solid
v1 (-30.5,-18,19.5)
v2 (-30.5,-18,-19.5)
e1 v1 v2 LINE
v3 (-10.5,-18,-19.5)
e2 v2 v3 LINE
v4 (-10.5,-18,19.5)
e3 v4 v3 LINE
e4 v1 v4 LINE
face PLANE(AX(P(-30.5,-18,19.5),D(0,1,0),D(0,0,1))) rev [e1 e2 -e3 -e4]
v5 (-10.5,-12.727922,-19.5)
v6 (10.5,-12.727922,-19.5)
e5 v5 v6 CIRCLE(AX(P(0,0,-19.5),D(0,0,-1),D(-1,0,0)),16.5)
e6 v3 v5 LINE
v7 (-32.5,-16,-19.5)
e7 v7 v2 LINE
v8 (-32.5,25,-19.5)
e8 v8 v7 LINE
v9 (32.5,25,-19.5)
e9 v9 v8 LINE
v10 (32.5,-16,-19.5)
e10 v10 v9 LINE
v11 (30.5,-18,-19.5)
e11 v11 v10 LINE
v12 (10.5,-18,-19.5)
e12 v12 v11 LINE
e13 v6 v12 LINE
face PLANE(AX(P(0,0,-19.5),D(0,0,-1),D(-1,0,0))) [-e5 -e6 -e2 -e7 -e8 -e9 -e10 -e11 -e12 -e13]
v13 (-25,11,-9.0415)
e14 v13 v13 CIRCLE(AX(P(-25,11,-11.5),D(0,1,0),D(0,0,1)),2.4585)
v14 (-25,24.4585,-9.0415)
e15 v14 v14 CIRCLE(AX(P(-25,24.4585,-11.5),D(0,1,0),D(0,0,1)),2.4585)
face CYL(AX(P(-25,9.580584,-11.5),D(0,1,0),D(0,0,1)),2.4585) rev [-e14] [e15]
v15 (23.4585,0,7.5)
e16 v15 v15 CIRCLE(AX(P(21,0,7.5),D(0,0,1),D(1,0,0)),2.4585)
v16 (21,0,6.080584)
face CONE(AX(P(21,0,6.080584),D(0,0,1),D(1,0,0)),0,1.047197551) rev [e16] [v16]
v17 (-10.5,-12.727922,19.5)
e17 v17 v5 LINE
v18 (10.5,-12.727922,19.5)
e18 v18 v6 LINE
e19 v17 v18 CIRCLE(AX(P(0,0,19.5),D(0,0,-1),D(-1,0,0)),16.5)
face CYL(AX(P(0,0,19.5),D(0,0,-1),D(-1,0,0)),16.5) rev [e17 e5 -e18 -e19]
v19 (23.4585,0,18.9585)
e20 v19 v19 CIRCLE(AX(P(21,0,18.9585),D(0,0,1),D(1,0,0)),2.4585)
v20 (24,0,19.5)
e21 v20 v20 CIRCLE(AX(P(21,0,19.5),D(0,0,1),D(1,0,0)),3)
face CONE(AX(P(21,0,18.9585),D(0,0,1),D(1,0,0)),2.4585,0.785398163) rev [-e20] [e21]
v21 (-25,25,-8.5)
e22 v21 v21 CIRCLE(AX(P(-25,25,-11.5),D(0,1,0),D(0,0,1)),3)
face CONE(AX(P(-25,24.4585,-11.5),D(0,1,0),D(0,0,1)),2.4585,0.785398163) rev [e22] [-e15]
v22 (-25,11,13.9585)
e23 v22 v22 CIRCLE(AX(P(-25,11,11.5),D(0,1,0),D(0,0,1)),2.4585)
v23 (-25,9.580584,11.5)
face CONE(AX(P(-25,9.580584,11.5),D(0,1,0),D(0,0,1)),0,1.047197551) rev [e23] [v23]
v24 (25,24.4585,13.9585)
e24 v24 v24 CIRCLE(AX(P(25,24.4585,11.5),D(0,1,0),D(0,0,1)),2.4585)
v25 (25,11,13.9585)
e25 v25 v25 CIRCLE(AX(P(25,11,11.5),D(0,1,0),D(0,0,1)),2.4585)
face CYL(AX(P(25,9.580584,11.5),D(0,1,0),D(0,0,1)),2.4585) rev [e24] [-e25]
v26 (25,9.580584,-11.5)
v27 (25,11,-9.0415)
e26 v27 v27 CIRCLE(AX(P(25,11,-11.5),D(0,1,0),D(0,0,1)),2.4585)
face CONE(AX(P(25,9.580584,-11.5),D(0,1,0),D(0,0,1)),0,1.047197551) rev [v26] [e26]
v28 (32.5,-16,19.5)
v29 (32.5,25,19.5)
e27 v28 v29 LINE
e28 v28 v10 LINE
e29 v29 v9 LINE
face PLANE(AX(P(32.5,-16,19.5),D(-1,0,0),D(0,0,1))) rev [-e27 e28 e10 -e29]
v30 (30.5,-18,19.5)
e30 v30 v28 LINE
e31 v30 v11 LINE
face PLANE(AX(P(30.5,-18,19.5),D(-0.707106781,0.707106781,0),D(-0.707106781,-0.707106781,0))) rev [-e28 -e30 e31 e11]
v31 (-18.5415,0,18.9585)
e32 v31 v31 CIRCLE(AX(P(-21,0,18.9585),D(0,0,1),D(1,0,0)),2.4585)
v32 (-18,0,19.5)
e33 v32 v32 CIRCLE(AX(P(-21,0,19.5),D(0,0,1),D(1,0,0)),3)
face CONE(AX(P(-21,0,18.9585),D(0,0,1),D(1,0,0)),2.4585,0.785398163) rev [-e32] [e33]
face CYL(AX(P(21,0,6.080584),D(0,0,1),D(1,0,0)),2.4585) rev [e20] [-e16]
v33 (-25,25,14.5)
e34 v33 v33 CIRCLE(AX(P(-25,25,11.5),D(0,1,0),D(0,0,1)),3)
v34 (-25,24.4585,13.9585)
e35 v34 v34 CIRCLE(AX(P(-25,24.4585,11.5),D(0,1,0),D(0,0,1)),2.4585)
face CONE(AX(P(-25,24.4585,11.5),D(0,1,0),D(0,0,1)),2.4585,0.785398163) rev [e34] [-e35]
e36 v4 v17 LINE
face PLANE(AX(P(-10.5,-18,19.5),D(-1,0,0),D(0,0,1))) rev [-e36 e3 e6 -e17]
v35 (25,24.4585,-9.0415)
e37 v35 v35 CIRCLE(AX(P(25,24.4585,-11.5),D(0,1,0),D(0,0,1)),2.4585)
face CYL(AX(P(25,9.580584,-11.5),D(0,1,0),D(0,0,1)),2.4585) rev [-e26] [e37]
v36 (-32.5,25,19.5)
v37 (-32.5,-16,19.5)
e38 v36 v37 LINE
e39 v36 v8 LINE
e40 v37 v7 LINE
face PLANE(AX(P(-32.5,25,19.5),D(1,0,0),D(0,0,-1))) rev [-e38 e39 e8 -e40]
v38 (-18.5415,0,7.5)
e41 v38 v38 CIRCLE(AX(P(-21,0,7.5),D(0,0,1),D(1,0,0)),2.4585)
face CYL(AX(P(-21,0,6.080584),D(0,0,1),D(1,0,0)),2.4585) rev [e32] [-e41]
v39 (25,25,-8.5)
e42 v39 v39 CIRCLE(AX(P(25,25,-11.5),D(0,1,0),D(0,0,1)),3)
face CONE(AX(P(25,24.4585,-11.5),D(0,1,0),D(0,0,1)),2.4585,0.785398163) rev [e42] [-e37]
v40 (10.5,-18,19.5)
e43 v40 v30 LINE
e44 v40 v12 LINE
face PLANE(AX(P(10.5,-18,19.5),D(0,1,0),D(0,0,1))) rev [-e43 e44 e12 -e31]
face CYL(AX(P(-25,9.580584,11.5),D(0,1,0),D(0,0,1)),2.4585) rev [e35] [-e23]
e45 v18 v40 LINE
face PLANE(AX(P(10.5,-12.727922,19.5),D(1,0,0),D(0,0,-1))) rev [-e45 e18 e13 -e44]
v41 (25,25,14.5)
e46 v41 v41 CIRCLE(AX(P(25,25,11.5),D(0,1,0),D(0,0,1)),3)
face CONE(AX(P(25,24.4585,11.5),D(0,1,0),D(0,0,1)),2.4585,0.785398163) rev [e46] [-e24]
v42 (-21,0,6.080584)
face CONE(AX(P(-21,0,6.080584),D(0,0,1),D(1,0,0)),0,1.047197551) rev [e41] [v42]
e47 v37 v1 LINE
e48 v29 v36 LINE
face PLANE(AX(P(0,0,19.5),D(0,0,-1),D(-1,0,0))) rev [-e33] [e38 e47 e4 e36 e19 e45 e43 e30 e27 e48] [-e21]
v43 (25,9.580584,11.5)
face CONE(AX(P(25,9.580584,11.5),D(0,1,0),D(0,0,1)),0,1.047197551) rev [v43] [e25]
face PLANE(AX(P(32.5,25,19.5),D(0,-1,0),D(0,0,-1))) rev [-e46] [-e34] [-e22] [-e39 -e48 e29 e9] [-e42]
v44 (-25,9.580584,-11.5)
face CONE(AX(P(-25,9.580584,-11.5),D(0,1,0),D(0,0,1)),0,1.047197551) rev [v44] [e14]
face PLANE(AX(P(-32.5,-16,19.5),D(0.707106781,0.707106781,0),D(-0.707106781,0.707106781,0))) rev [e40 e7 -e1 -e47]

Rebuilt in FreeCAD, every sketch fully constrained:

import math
import FreeCAD as App
import Part
import Sketcher
Q = App.Units.Quantity

doc = App.newDocument("Part")
body = doc.addObject("PartDesign::Body", "Body")

# Sketch on XY plane
sketch1 = doc.addObject("Sketcher::SketchObject", "Sketch")
body.addObject(sketch1)
sketch1.AttachmentSupport = (doc.XY_Plane, [""])
sketch1.MapMode = "FlatFace"
sketch1.addGeometry([
    Part.LineSegment(App.Vector(-32.5, 25, 0), App.Vector(-32.5, -16, 0)),  # 0
    Part.LineSegment(App.Vector(-32.5, -16, 0), App.Vector(-30.5, -18, 0)),  # 1
    Part.LineSegment(App.Vector(-30.5, -18, 0), App.Vector(-10.5, -18, 0)),  # 2
    Part.LineSegment(App.Vector(-10.5, -18, 0), App.Vector(-10.5, -12.7, 0)),  # 3
    Part.ArcOfCircle(Part.Circle(App.Vector(0, 0, 0), App.Vector(0, 0, 1), 16.5), math.radians(-50), math.radians(230)),  # 4
    Part.LineSegment(App.Vector(10.5, -12.7, 0), App.Vector(10.5, -18, 0)),  # 5
    Part.LineSegment(App.Vector(10.5, -18, 0), App.Vector(30.5, -18, 0)),  # 6
    Part.LineSegment(App.Vector(30.5, -18, 0), App.Vector(32.5, -16, 0)),  # 7
    Part.LineSegment(App.Vector(32.5, -16, 0), App.Vector(32.5, 25, 0)),  # 8
    Part.LineSegment(App.Vector(32.5, 25, 0), App.Vector(-32.5, 25, 0)),  # 9
], False)
sketch1.addConstraint([
    Sketcher.Constraint("Coincident", 0, 2, 1, 1),
    Sketcher.Constraint("Coincident", 1, 2, 2, 1),
    Sketcher.Constraint("Coincident", 2, 2, 3, 1),
    Sketcher.Constraint("Coincident", 3, 2, 4, 2),
    Sketcher.Constraint("Coincident", 4, 1, 5, 1),
    Sketcher.Constraint("Coincident", 5, 2, 6, 1),
    Sketcher.Constraint("Coincident", 6, 2, 7, 1),
    Sketcher.Constraint("Coincident", 7, 2, 8, 1),
    Sketcher.Constraint("Coincident", 8, 2, 9, 1),
    Sketcher.Constraint("Coincident", 9, 2, 0, 1),
    Sketcher.Constraint("Vertical", 0),
    Sketcher.Constraint("Horizontal", 2),
    Sketcher.Constraint("Vertical", 3),
    Sketcher.Constraint("Vertical", 5),
    Sketcher.Constraint("Horizontal", 6),
    Sketcher.Constraint("Vertical", 8),
    Sketcher.Constraint("Horizontal", 9),
    Sketcher.Constraint("Coincident", 4, 3, -1, 1),
    Sketcher.Constraint("Symmetric", 2, 2, 5, 2, -2),
    Sketcher.Constraint("Symmetric", 0, 2, 7, 2, -2),
    Sketcher.Constraint("Perpendicular", 1, 7),
    Sketcher.Constraint("Equal", 2, 6),
    Sketcher.Constraint("Radius", 4, 16.5),
    Sketcher.Constraint("DistanceX", 2, 1, 2, 2, 20.0),
    Sketcher.Constraint("DistanceX", 9, 2, 9, 1, 65.0),
    Sketcher.Constraint("DistanceY", 0, 2, 0, 1, 41.0),
    Sketcher.Constraint("DistanceY", 0, 2, -1, 1, 16.0),
    Sketcher.Constraint("DistanceY", 1, 2, -1, 1, 18.0),
])
pad1 = doc.addObject("PartDesign::Pad", "Pad")
body.addObject(pad1)
pad1.Profile = sketch1
pad1.Type = "TwoLengths"
pad1.Length = 19.5
pad1.Length2 = 19.5

# Sketch on YZ plane
sketch2 = doc.addObject("Sketcher::SketchObject", "Sketch001")
body.addObject(sketch2)
sketch2.AttachmentSupport = (doc.YZ_Plane, [""])
sketch2.MapMode = "FlatFace"
sketch2.AttachmentOffset = App.Placement(App.Vector(0, 0, 21), App.Rotation())
sketch2.addGeometry([
    Part.LineSegment(App.Vector(3, 19.5, 0), App.Vector(0, 19.5, 0)),  # 0
    Part.LineSegment(App.Vector(0, 19.5, 0), App.Vector(0, 6.1, 0)),  # 1
    Part.LineSegment(App.Vector(0, 6.1, 0), App.Vector(2.5, 7.5, 0)),  # 2
    Part.LineSegment(App.Vector(2.5, 7.5, 0), App.Vector(2.5, 19, 0)),  # 3
    Part.LineSegment(App.Vector(2.5, 19, 0), App.Vector(3, 19.5, 0)),  # 4
], False)
sketch2.addConstraint([
    Sketcher.Constraint("Coincident", 0, 2, 1, 1),
    Sketcher.Constraint("Coincident", 1, 2, 2, 1),
    Sketcher.Constraint("Coincident", 2, 2, 3, 1),
    Sketcher.Constraint("Coincident", 3, 2, 4, 1),
    Sketcher.Constraint("Coincident", 4, 2, 0, 1),
    Sketcher.Constraint("Horizontal", 0),
    Sketcher.Constraint("Vertical", 1),
    Sketcher.Constraint("Vertical", 3),
    Sketcher.Constraint("PointOnObject", 0, 2, -2),
    Sketcher.Constraint("DistanceX", 0, 2, 0, 1, 3.0),
    Sketcher.Constraint("Angle", 2, Q("30 deg")),
    Sketcher.Constraint("Angle", 4, Q("45 deg")),
    Sketcher.Constraint("DistanceY", 2, 2, 0, 2, 12.0),
    Sketcher.Constraint("DistanceY", -1, 1, 0, 2, 19.5),
    Sketcher.Constraint("DistanceY", 3, 1, 3, 2, 11.4585),
])
groove = doc.addObject("PartDesign::Groove", "Groove")
body.addObject(groove)
groove.Profile = sketch2
groove.ReferenceAxis = (sketch2, ["V_Axis"])
groove.Angle = 360

# Sketch on YZ plane
sketch3 = doc.addObject("Sketcher::SketchObject", "Sketch002")
body.addObject(sketch3)
sketch3.AttachmentSupport = (doc.YZ_Plane, [""])
sketch3.MapMode = "FlatFace"
sketch3.AttachmentOffset = App.Placement(App.Vector(0, 0, -21), App.Rotation())
sketch3.addGeometry([
    Part.LineSegment(App.Vector(3, 19.5, 0), App.Vector(0, 19.5, 0)),  # 0
    Part.LineSegment(App.Vector(0, 19.5, 0), App.Vector(0, 6.1, 0)),  # 1
    Part.LineSegment(App.Vector(0, 6.1, 0), App.Vector(2.5, 7.5, 0)),  # 2
    Part.LineSegment(App.Vector(2.5, 7.5, 0), App.Vector(2.5, 19, 0)),  # 3
    Part.LineSegment(App.Vector(2.5, 19, 0), App.Vector(3, 19.5, 0)),  # 4
], False)
sketch3.addConstraint([
    Sketcher.Constraint("Coincident", 0, 2, 1, 1),
    Sketcher.Constraint("Coincident", 1, 2, 2, 1),
    Sketcher.Constraint("Coincident", 2, 2, 3, 1),
    Sketcher.Constraint("Coincident", 3, 2, 4, 1),
    Sketcher.Constraint("Coincident", 4, 2, 0, 1),
    Sketcher.Constraint("Horizontal", 0),
    Sketcher.Constraint("Vertical", 1),
    Sketcher.Constraint("Vertical", 3),
    Sketcher.Constraint("PointOnObject", 0, 2, -2),
    Sketcher.Constraint("DistanceX", 0, 2, 0, 1, 3.0),
    Sketcher.Constraint("Angle", 2, Q("30 deg")),
    Sketcher.Constraint("Angle", 4, Q("45 deg")),
    Sketcher.Constraint("DistanceY", 2, 2, 0, 2, 12.0),
    Sketcher.Constraint("DistanceY", -1, 1, 0, 2, 19.5),
    Sketcher.Constraint("DistanceY", 3, 1, 3, 2, 11.4585),
])
groove2 = doc.addObject("PartDesign::Groove", "Groove001")
body.addObject(groove2)
groove2.Profile = sketch3
groove2.ReferenceAxis = (sketch3, ["V_Axis"])
groove2.Angle = 360

# Sketch on YZ plane
sketch4 = doc.addObject("Sketcher::SketchObject", "Sketch003")
body.addObject(sketch4)
sketch4.AttachmentSupport = (doc.YZ_Plane, [""])
sketch4.MapMode = "FlatFace"
sketch4.AttachmentOffset = App.Placement(App.Vector(0, 0, 25), App.Rotation())
sketch4.addGeometry([
    Part.LineSegment(App.Vector(25, 8.5, 0), App.Vector(25, 11.5, 0)),  # 0
    Part.LineSegment(App.Vector(25, 11.5, 0), App.Vector(9.6, 11.5, 0)),  # 1
    Part.LineSegment(App.Vector(9.6, 11.5, 0), App.Vector(11, 9, 0)),  # 2
    Part.LineSegment(App.Vector(11, 9, 0), App.Vector(24.5, 9, 0)),  # 3
    Part.LineSegment(App.Vector(24.5, 9, 0), App.Vector(25, 8.5, 0)),  # 4
], False)
sketch4.addGeometry(Part.LineSegment(App.Vector(9.6, 11.5, 0), App.Vector(25, 11.5, 0)), True)  # axis
sketch4.addConstraint([
    Sketcher.Constraint("Coincident", 0, 2, 1, 1),
    Sketcher.Constraint("Coincident", 1, 2, 2, 1),
    Sketcher.Constraint("Coincident", 2, 2, 3, 1),
    Sketcher.Constraint("Coincident", 3, 2, 4, 1),
    Sketcher.Constraint("Coincident", 4, 2, 0, 1),
    Sketcher.Constraint("Vertical", 0),
    Sketcher.Constraint("Horizontal", 1),
    Sketcher.Constraint("Horizontal", 3),
    Sketcher.Constraint("Horizontal", 5),
    Sketcher.Constraint("Coincident", 5, 1, 1, 2),
    Sketcher.Constraint("Vertical", 4, 2, 5, 2),
    Sketcher.Constraint("DistanceY", 0, 1, 0, 2, 3.0),
    Sketcher.Constraint("Angle", 2, Q("-60 deg")),
    Sketcher.Constraint("Angle", 4, Q("-45 deg")),
    Sketcher.Constraint("DistanceX", -1, 1, 0, 2, 25.0),
    Sketcher.Constraint("DistanceX", -1, 1, 2, 2, 11.0),
    Sketcher.Constraint("DistanceY", -1, 1, 0, 2, 11.5),
    Sketcher.Constraint("DistanceX", 3, 1, 3, 2, 13.4585),
])
groove3 = doc.addObject("PartDesign::Groove", "Groove002")
body.addObject(groove3)
groove3.Profile = sketch4
groove3.ReferenceAxis = (sketch4, ["Axis0"])
groove3.Angle = 360

# Sketch on YZ plane
sketch5 = doc.addObject("Sketcher::SketchObject", "Sketch004")
body.addObject(sketch5)
sketch5.AttachmentSupport = (doc.YZ_Plane, [""])
sketch5.MapMode = "FlatFace"
sketch5.AttachmentOffset = App.Placement(App.Vector(0, 0, 25), App.Rotation())
sketch5.addGeometry([
    Part.LineSegment(App.Vector(25, -14.5, 0), App.Vector(25, -11.5, 0)),  # 0
    Part.LineSegment(App.Vector(25, -11.5, 0), App.Vector(9.6, -11.5, 0)),  # 1
    Part.LineSegment(App.Vector(9.6, -11.5, 0), App.Vector(11, -14, 0)),  # 2
    Part.LineSegment(App.Vector(11, -14, 0), App.Vector(24.5, -14, 0)),  # 3
    Part.LineSegment(App.Vector(24.5, -14, 0), App.Vector(25, -14.5, 0)),  # 4
], False)
sketch5.addGeometry(Part.LineSegment(App.Vector(9.6, -11.5, 0), App.Vector(25, -11.5, 0)), True)  # axis
sketch5.addConstraint([
    Sketcher.Constraint("Coincident", 0, 2, 1, 1),
    Sketcher.Constraint("Coincident", 1, 2, 2, 1),
    Sketcher.Constraint("Coincident", 2, 2, 3, 1),
    Sketcher.Constraint("Coincident", 3, 2, 4, 1),
    Sketcher.Constraint("Coincident", 4, 2, 0, 1),
    Sketcher.Constraint("Vertical", 0),
    Sketcher.Constraint("Horizontal", 1),
    Sketcher.Constraint("Horizontal", 3),
    Sketcher.Constraint("Horizontal", 5),
    Sketcher.Constraint("Coincident", 5, 1, 1, 2),
    Sketcher.Constraint("Vertical", 4, 2, 5, 2),
    Sketcher.Constraint("DistanceY", 0, 1, 0, 2, 3.0),
    Sketcher.Constraint("Angle", 2, Q("-60 deg")),
    Sketcher.Constraint("Angle", 4, Q("-45 deg")),
    Sketcher.Constraint("DistanceX", -1, 1, 0, 2, 25.0),
    Sketcher.Constraint("DistanceX", -1, 1, 2, 2, 11.0),
    Sketcher.Constraint("DistanceY", 0, 2, -1, 1, 11.5),
    Sketcher.Constraint("DistanceX", 3, 1, 3, 2, 13.4585),
])
groove4 = doc.addObject("PartDesign::Groove", "Groove003")
body.addObject(groove4)
groove4.Profile = sketch5
groove4.ReferenceAxis = (sketch5, ["Axis0"])
groove4.Angle = 360

# Sketch on YZ plane
sketch6 = doc.addObject("Sketcher::SketchObject", "Sketch005")
body.addObject(sketch6)
sketch6.AttachmentSupport = (doc.YZ_Plane, [""])
sketch6.MapMode = "FlatFace"
sketch6.AttachmentOffset = App.Placement(App.Vector(0, 0, -25), App.Rotation())
sketch6.addGeometry([
    Part.LineSegment(App.Vector(25, 8.5, 0), App.Vector(25, 11.5, 0)),  # 0
    Part.LineSegment(App.Vector(25, 11.5, 0), App.Vector(9.6, 11.5, 0)),  # 1
    Part.LineSegment(App.Vector(9.6, 11.5, 0), App.Vector(11, 9, 0)),  # 2
    Part.LineSegment(App.Vector(11, 9, 0), App.Vector(24.5, 9, 0)),  # 3
    Part.LineSegment(App.Vector(24.5, 9, 0), App.Vector(25, 8.5, 0)),  # 4
], False)
sketch6.addGeometry(Part.LineSegment(App.Vector(9.6, 11.5, 0), App.Vector(25, 11.5, 0)), True)  # axis
sketch6.addConstraint([
    Sketcher.Constraint("Coincident", 0, 2, 1, 1),
    Sketcher.Constraint("Coincident", 1, 2, 2, 1),
    Sketcher.Constraint("Coincident", 2, 2, 3, 1),
    Sketcher.Constraint("Coincident", 3, 2, 4, 1),
    Sketcher.Constraint("Coincident", 4, 2, 0, 1),
    Sketcher.Constraint("Vertical", 0),
    Sketcher.Constraint("Horizontal", 1),
    Sketcher.Constraint("Horizontal", 3),
    Sketcher.Constraint("Horizontal", 5),
    Sketcher.Constraint("Coincident", 5, 1, 1, 2),
    Sketcher.Constraint("Vertical", 4, 2, 5, 2),
    Sketcher.Constraint("DistanceY", 0, 1, 0, 2, 3.0),
    Sketcher.Constraint("Angle", 2, Q("-60 deg")),
    Sketcher.Constraint("Angle", 4, Q("-45 deg")),
    Sketcher.Constraint("DistanceX", -1, 1, 0, 2, 25.0),
    Sketcher.Constraint("DistanceX", -1, 1, 2, 2, 11.0),
    Sketcher.Constraint("DistanceY", -1, 1, 0, 2, 11.5),
    Sketcher.Constraint("DistanceX", 3, 1, 3, 2, 13.4585),
])
groove5 = doc.addObject("PartDesign::Groove", "Groove004")
body.addObject(groove5)
groove5.Profile = sketch6
groove5.ReferenceAxis = (sketch6, ["Axis0"])
groove5.Angle = 360

# Sketch on YZ plane
sketch7 = doc.addObject("Sketcher::SketchObject", "Sketch006")
body.addObject(sketch7)
sketch7.AttachmentSupport = (doc.YZ_Plane, [""])
sketch7.MapMode = "FlatFace"
sketch7.AttachmentOffset = App.Placement(App.Vector(0, 0, -25), App.Rotation())
sketch7.addGeometry([
    Part.LineSegment(App.Vector(25, -14.5, 0), App.Vector(25, -11.5, 0)),  # 0
    Part.LineSegment(App.Vector(25, -11.5, 0), App.Vector(9.6, -11.5, 0)),  # 1
    Part.LineSegment(App.Vector(9.6, -11.5, 0), App.Vector(11, -14, 0)),  # 2
    Part.LineSegment(App.Vector(11, -14, 0), App.Vector(24.5, -14, 0)),  # 3
    Part.LineSegment(App.Vector(24.5, -14, 0), App.Vector(25, -14.5, 0)),  # 4
], False)
sketch7.addGeometry(Part.LineSegment(App.Vector(9.6, -11.5, 0), App.Vector(25, -11.5, 0)), True)  # axis
sketch7.addConstraint([
    Sketcher.Constraint("Coincident", 0, 2, 1, 1),
    Sketcher.Constraint("Coincident", 1, 2, 2, 1),
    Sketcher.Constraint("Coincident", 2, 2, 3, 1),
    Sketcher.Constraint("Coincident", 3, 2, 4, 1),
    Sketcher.Constraint("Coincident", 4, 2, 0, 1),
    Sketcher.Constraint("Vertical", 0),
    Sketcher.Constraint("Horizontal", 1),
    Sketcher.Constraint("Horizontal", 3),
    Sketcher.Constraint("Horizontal", 5),
    Sketcher.Constraint("Coincident", 5, 1, 1, 2),
    Sketcher.Constraint("Vertical", 4, 2, 5, 2),
    Sketcher.Constraint("DistanceY", 0, 1, 0, 2, 3.0),
    Sketcher.Constraint("Angle", 2, Q("-60 deg")),
    Sketcher.Constraint("Angle", 4, Q("-45 deg")),
    Sketcher.Constraint("DistanceX", -1, 1, 0, 2, 25.0),
    Sketcher.Constraint("DistanceX", -1, 1, 2, 2, 11.0),
    Sketcher.Constraint("DistanceY", 0, 2, -1, 1, 11.5),
    Sketcher.Constraint("DistanceX", 3, 1, 3, 2, 13.4585),
])
groove6 = doc.addObject("PartDesign::Groove", "Groove005")
body.addObject(groove6)
groove6.Profile = sketch7
groove6.ReferenceAxis = (sketch7, ["Axis0"])
groove6.Angle = 360

doc.recompute()
